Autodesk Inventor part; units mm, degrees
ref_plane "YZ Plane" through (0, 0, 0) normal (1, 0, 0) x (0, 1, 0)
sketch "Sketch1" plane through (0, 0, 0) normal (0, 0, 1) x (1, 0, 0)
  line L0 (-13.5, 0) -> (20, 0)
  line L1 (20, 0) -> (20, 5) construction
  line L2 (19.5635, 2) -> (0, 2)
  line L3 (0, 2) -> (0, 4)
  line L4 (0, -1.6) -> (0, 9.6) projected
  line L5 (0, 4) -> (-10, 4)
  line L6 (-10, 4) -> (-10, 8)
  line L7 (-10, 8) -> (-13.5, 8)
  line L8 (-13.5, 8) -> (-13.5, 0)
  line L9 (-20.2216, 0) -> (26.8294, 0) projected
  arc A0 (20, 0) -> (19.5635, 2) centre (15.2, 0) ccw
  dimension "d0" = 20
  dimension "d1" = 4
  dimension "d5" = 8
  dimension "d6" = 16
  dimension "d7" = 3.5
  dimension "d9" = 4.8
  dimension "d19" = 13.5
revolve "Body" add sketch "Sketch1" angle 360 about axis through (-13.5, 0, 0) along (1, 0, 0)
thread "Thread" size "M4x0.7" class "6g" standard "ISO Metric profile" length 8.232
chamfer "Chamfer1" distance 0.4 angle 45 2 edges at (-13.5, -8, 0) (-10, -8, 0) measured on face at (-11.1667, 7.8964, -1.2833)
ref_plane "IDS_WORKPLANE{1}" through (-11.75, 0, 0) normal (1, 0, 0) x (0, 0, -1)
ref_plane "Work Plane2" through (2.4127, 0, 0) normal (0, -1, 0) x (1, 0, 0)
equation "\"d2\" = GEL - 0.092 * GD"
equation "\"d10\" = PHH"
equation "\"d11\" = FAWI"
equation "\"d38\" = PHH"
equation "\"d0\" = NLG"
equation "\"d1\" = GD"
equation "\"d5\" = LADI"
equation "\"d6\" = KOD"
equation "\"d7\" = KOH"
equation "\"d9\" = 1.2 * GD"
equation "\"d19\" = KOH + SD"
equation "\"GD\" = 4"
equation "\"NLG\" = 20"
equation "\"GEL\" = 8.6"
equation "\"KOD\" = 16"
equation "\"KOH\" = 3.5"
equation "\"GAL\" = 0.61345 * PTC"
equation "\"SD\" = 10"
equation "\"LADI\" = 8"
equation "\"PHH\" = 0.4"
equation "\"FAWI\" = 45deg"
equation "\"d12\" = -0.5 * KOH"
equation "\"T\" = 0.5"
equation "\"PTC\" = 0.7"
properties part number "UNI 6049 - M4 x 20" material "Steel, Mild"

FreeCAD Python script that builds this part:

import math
import FreeCAD as App
import Part
import Sketcher

V = App.Vector


def edges_at(feature, points):
    """Names of the edges that pass closest to the given points."""
    edges = feature.Shape.Edges
    near = lambda p: min(range(len(edges)), key=lambda i: edges[i].distToShape(Part.Vertex(*p))[0])
    return sorted({f"Edge{near(p) + 1}" for p in points})

doc = App.newDocument("Part")
body = doc.addObject("PartDesign::Body", "Body")

sketch1 = body.newObject("Sketcher::SketchObject", "Sketch")
sketch1.AttachmentSupport = (doc.getObject("XY_Plane"), [""])
sketch1.MapMode = "FlatFace"
sketch1.addGeometry([
    Part.LineSegment(V(-13.5, 8, 0), V(-13.5, 0, 0)),
    Part.LineSegment(V(-13.5, 0, 0), V(20, 0, 0)),
    Part.ArcOfCircle(Part.Circle(V(15.2, 0, 0), V(0, 0, 1), 4.8), math.radians(0), math.radians(25)),
    Part.LineSegment(V(19.6, 2, 0), V(0, 2, 0)),
    Part.LineSegment(V(0, 2, 0), V(0, 4, 0)),
    Part.LineSegment(V(0, 4, 0), V(-10, 4, 0)),
    Part.LineSegment(V(-10, 4, 0), V(-10, 8, 0)),
    Part.LineSegment(V(-10, 8, 0), V(-13.5, 8, 0)),
], False)
sketch1.addConstraint([
    Sketcher.Constraint("Coincident", 0, 2, 1, 1),
    Sketcher.Constraint("Coincident", 1, 2, 2, 1),
    Sketcher.Constraint("Coincident", 2, 2, 3, 1),
    Sketcher.Constraint("Coincident", 3, 2, 4, 1),
    Sketcher.Constraint("Coincident", 4, 2, 5, 1),
    Sketcher.Constraint("Coincident", 5, 2, 6, 1),
    Sketcher.Constraint("Coincident", 6, 2, 7, 1),
    Sketcher.Constraint("Coincident", 7, 2, 0, 1),
    Sketcher.Constraint("Vertical", 0),
    Sketcher.Constraint("Horizontal", 1),
    Sketcher.Constraint("Horizontal", 3),
    Sketcher.Constraint("Vertical", 4),
    Sketcher.Constraint("Horizontal", 5),
    Sketcher.Constraint("Vertical", 6),
    Sketcher.Constraint("Horizontal", 7),
    Sketcher.Constraint("PointOnObject", 2, 3, -1),
    Sketcher.Constraint("PointOnObject", 0, 2, -1),
    Sketcher.Constraint("PointOnObject", 3, 2, -2),
    Sketcher.Constraint("Radius", 2, 4.8),
    Sketcher.Constraint("DistanceY", 0, 2, 0, 1, 8.0),
    Sketcher.Constraint("DistanceY", 6, 1, 6, 2, 4.0),
    Sketcher.Constraint("DistanceX", 7, 2, 7, 1, 3.5),
    Sketcher.Constraint("DistanceX", -1, 1, 1, 2, 20.0),
    Sketcher.Constraint("DistanceX", 0, 2, -1, 1, 13.5),
    Sketcher.Constraint("DistanceY", 4, 1, 4, 2, 2.0),
])
revolution = body.newObject("PartDesign::Revolution", "Revolution")
revolution.Profile = sketch1
revolution.ReferenceAxis = (sketch1, ["H_Axis"])
revolution.Angle = 360
doc.recompute()

chamfer = body.newObject("PartDesign::Chamfer", "Chamfer")
chamfer.Base = (revolution, edges_at(revolution, [(-13.5, -8, 0), (-10, -8, 0)]))
chamfer.Size = 0.4

doc.recompute()
